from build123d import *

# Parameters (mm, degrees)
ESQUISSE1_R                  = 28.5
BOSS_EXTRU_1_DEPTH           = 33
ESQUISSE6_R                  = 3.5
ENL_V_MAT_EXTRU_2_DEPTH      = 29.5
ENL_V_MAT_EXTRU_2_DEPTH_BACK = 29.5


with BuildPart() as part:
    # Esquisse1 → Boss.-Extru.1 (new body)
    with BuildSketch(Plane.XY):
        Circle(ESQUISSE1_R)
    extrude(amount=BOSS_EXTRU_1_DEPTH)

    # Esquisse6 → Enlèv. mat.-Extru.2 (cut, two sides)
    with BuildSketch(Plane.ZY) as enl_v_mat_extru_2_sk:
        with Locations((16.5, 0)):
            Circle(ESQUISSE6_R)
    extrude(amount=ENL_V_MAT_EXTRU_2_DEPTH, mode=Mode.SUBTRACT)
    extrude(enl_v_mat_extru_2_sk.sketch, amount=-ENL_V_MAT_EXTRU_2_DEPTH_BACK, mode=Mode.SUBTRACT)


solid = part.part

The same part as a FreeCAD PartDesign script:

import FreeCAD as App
import Part
import Sketcher

V = App.Vector

doc = App.newDocument("Part")
body = doc.addObject("PartDesign::Body", "Body")

# Sketch on XY plane
sketch1 = doc.addObject("Sketcher::SketchObject", "Sketch")
body.addObject(sketch1)
sketch1.AttachmentSupport = (doc.XY_Plane, [""])
sketch1.MapMode = "FlatFace"
sketch1.addGeometry(Part.Circle(V(0, 0, 0), V(0, 0, 1), 28), False)
sketch1.addConstraint([
    Sketcher.Constraint("Coincident", 0, 3, -1, 1),
    Sketcher.Constraint("Diameter", 0, 57.0),
])
pad1 = doc.addObject("PartDesign::Pad", "Pad")
body.addObject(pad1)
pad1.Profile = sketch1
pad1.Length = 33

# Sketch on YZ plane
sketch2 = doc.addObject("Sketcher::SketchObject", "Sketch001")
body.addObject(sketch2)
sketch2.AttachmentSupport = (doc.YZ_Plane, [""])
sketch2.MapMode = "FlatFace"
sketch2.addGeometry(Part.Circle(V(0, 16.5, 0), V(0, 0, 1), 3.5), False)
sketch2.addConstraint([
    Sketcher.Constraint("PointOnObject", 0, 3, -2),
    Sketcher.Constraint("Diameter", 0, 7.0),
    Sketcher.Constraint("DistanceY", -1, 1, 0, 3, 16.5),
])
pocket1 = doc.addObject("PartDesign::Pocket", "Pocket")
body.addObject(pocket1)
pocket1.Profile = sketch2
pocket1.Type = "ThroughAll"
pocket1.Midplane = True

doc.recompute()
